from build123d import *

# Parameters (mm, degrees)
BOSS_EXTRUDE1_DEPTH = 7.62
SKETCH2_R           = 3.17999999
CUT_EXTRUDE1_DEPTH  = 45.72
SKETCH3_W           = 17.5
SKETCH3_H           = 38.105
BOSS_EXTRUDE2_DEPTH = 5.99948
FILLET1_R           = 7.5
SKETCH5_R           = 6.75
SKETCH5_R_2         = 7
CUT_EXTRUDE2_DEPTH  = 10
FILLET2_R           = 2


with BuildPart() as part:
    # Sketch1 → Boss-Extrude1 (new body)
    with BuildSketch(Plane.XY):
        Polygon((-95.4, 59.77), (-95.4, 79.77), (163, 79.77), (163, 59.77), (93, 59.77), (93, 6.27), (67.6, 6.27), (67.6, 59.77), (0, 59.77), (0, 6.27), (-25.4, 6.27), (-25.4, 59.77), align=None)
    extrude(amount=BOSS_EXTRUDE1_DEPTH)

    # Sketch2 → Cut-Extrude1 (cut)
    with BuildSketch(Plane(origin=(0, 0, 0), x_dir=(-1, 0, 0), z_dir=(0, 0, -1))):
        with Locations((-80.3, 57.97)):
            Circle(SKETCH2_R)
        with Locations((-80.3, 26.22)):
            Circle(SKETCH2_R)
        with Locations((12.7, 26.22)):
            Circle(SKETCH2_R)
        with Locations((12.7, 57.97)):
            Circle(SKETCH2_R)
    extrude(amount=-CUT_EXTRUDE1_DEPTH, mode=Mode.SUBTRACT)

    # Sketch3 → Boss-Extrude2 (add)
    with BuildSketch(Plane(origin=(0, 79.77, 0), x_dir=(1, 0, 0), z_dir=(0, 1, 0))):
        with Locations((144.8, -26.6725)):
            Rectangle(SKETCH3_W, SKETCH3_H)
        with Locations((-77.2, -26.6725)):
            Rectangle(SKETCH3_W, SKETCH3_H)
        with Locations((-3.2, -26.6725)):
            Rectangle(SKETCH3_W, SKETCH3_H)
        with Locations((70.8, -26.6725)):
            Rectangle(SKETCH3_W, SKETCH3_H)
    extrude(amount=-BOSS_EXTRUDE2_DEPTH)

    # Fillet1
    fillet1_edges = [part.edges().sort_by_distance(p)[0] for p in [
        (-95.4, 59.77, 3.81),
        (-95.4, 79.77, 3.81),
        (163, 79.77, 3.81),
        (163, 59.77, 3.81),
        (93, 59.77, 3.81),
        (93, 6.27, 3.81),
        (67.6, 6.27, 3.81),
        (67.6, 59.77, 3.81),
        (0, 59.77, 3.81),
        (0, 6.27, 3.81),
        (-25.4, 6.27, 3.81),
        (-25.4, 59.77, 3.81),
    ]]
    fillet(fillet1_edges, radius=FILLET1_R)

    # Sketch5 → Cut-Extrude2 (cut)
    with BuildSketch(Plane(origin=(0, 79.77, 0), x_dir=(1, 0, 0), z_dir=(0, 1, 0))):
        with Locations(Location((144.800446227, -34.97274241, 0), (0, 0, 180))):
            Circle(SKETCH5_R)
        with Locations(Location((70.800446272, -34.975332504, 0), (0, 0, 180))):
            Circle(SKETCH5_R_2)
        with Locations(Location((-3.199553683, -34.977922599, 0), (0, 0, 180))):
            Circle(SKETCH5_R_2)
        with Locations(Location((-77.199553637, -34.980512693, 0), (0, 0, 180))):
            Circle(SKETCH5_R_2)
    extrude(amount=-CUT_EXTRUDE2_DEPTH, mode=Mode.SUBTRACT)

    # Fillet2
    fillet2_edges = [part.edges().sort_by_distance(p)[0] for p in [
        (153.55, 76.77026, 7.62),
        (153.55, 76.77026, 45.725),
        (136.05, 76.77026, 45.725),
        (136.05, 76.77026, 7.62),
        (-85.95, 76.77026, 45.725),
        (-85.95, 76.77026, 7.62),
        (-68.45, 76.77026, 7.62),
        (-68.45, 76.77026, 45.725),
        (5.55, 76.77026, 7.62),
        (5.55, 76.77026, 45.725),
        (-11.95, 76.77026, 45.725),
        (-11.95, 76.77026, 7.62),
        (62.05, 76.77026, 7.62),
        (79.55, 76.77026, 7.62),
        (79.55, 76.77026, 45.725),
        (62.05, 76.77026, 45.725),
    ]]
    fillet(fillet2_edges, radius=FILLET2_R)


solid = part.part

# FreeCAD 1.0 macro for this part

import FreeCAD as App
import Part
import Sketcher


def edges_at(feature, points):
    """Names of the edges that pass closest to the given points."""
    edges = feature.Shape.Edges
    near = lambda p: min(range(len(edges)), key=lambda i: edges[i].distToShape(Part.Vertex(*p))[0])
    return sorted({f"Edge{near(p) + 1}" for p in points})

doc = App.newDocument("Part")
body = doc.addObject("PartDesign::Body", "Body")

# Sketch on XY plane
sketch1 = body.newObject("Sketcher::SketchObject", "Sketch")
sketch1.AttachmentSupport = (doc.getObject("XY_Plane"), [""])
sketch1.MapMode = "FlatFace"
sketch1.addGeometry(Part.LineSegment(App.Vector(-95, 80, 0), App.Vector(-95, 60, 0)), False)
sketch1.addGeometry(Part.LineSegment(App.Vector(-95, 60, 0), App.Vector(-25, 60, 0)), False)
sketch1.addGeometry(Part.LineSegment(App.Vector(-25, 60, 0), App.Vector(-25, 6, 0)), False)
sketch1.addGeometry(Part.LineSegment(App.Vector(-25, 6, 0), App.Vector(0, 6, 0)), False)
sketch1.addGeometry(Part.LineSegment(App.Vector(0, 6, 0), App.Vector(0, 60, 0)), False)
sketch1.addGeometry(Part.LineSegment(App.Vector(0, 60, 0), App.Vector(68, 60, 0)), False)
sketch1.addGeometry(Part.LineSegment(App.Vector(68, 60, 0), App.Vector(68, 6, 0)), False)
sketch1.addGeometry(Part.LineSegment(App.Vector(68, 6, 0), App.Vector(93, 6, 0)), False)
sketch1.addGeometry(Part.LineSegment(App.Vector(93, 6, 0), App.Vector(93, 60, 0)), False)
sketch1.addGeometry(Part.LineSegment(App.Vector(93, 60, 0), App.Vector(163, 60, 0)), False)
sketch1.addGeometry(Part.LineSegment(App.Vector(163, 60, 0), App.Vector(163, 80, 0)), False)
sketch1.addGeometry(Part.LineSegment(App.Vector(163, 80, 0), App.Vector(-95, 80, 0)), False)
sketch1.addConstraint(Sketcher.Constraint("Coincident", 0, 2, 1, 1))
sketch1.addConstraint(Sketcher.Constraint("Coincident", 1, 2, 2, 1))
sketch1.addConstraint(Sketcher.Constraint("Coincident", 2, 2, 3, 1))
sketch1.addConstraint(Sketcher.Constraint("Coincident", 3, 2, 4, 1))
sketch1.addConstraint(Sketcher.Constraint("Coincident", 4, 2, 5, 1))
sketch1.addConstraint(Sketcher.Constraint("Coincident", 5, 2, 6, 1))
sketch1.addConstraint(Sketcher.Constraint("Coincident", 6, 2, 7, 1))
sketch1.addConstraint(Sketcher.Constraint("Coincident", 7, 2, 8, 1))
sketch1.addConstraint(Sketcher.Constraint("Coincident", 8, 2, 9, 1))
sketch1.addConstraint(Sketcher.Constraint("Coincident", 9, 2, 10, 1))
sketch1.addConstraint(Sketcher.Constraint("Coincident", 10, 2, 11, 1))
sketch1.addConstraint(Sketcher.Constraint("Coincident", 11, 2, 0, 1))
sketch1.addConstraint(Sketcher.Constraint("Vertical", 0))
sketch1.addConstraint(Sketcher.Constraint("Horizontal", 1))
sketch1.addConstraint(Sketcher.Constraint("Vertical", 2))
sketch1.addConstraint(Sketcher.Constraint("Horizontal", 3))
sketch1.addConstraint(Sketcher.Constraint("Vertical", 4))
sketch1.addConstraint(Sketcher.Constraint("Horizontal", 5))
sketch1.addConstraint(Sketcher.Constraint("Vertical", 6))
sketch1.addConstraint(Sketcher.Constraint("Horizontal", 7))
sketch1.addConstraint(Sketcher.Constraint("Vertical", 8))
sketch1.addConstraint(Sketcher.Constraint("Horizontal", 9))
sketch1.addConstraint(Sketcher.Constraint("Vertical", 10))
sketch1.addConstraint(Sketcher.Constraint("Horizontal", 11))
sketch1.addConstraint(Sketcher.Constraint("PointOnObject", 3, 2, -2))
sketch1.addConstraint(Sketcher.Constraint("Horizontal", 1, 2, 4, 2))
sketch1.addConstraint(Sketcher.Constraint("Horizontal", 3, 2, 6, 2))
sketch1.addConstraint(Sketcher.Constraint("Horizontal", 5, 2, 8, 2))
sketch1.addConstraint(Sketcher.Constraint("Equal", 3, 7))
sketch1.addConstraint(Sketcher.Constraint("Equal", 1, 9))
sketch1.addConstraint(Sketcher.Constraint("DistanceX", 1, 1, 1, 2, 70.0))
sketch1.addConstraint(Sketcher.Constraint("DistanceY", 0, 2, 0, 1, 20.0))
sketch1.addConstraint(Sketcher.Constraint("DistanceX", 3, 1, 3, 2, 25.4))
sketch1.addConstraint(Sketcher.Constraint("DistanceX", 5, 1, 5, 2, 67.6))
sketch1.addConstraint(Sketcher.Constraint("DistanceY", 2, 2, 2, 1, 53.5))
sketch1.addConstraint(Sketcher.Constraint("DistanceY", -1, 1, 0, 2, 59.77))
pad1 = body.newObject("PartDesign::Pad", "Pad")
pad1.Profile = sketch1
pad1.Length = 7.62

# Sketch on XY plane
sketch2 = body.newObject("Sketcher::SketchObject", "Sketch001")
sketch2.AttachmentSupport = (doc.getObject("XY_Plane"), [""])
sketch2.MapMode = "FlatFace"
sketch2.addGeometry(Part.Circle(App.Vector(80.3, 58, 0), App.Vector(0, 0, 1), 3.2), False)
sketch2.addGeometry(Part.Circle(App.Vector(80.3, 26.2, 0), App.Vector(0, 0, 1), 3.2), False)
sketch2.addGeometry(Part.Circle(App.Vector(-12.7, 26.2, 0), App.Vector(0, 0, 1), 3.2), False)
sketch2.addGeometry(Part.Circle(App.Vector(-12.7, 58, 0), App.Vector(0, 0, 1), 3.2), False)
sketch2.addConstraint(Sketcher.Constraint("Equal", 0, 1))
sketch2.addConstraint(Sketcher.Constraint("Equal", 1, 2))
sketch2.addConstraint(Sketcher.Constraint("Equal", 2, 3))
sketch2.addConstraint(Sketcher.Constraint("Horizontal", 1, 3, 2, 3))
sketch2.addConstraint(Sketcher.Constraint("Horizontal", 0, 3, 3, 3))
sketch2.addConstraint(Sketcher.Constraint("Vertical", 0, 3, 1, 3))
sketch2.addConstraint(Sketcher.Constraint("Vertical", 2, 3, 3, 3))
sketch2.addConstraint(Sketcher.Constraint("Diameter", 0, 6.36))
sketch2.addConstraint(Sketcher.Constraint("DistanceX", 2, 3, 1, 3, 93.0))
sketch2.addConstraint(Sketcher.Constraint("DistanceX", -1, 1, 0, 3, 80.3))
sketch2.addConstraint(Sketcher.Constraint("DistanceY", -1, 1, 0, 3, 57.97))
sketch2.addConstraint(Sketcher.Constraint("DistanceY", -1, 1, 1, 3, 26.22))
pocket1 = body.newObject("PartDesign::Pocket", "Pocket")
pocket1.Profile = sketch2
pocket1.Length = 45.72
pocket1.Reversed = True

# Sketch on XZ plane
sketch3 = body.newObject("Sketcher::SketchObject", "Sketch002")
sketch3.AttachmentSupport = (doc.getObject("XZ_Plane"), [""])
sketch3.MapMode = "FlatFace"
sketch3.AttachmentOffset = App.Placement(App.Vector(0, 0, -79.77), App.Rotation())
sketch3.addGeometry(Part.LineSegment(App.Vector(136, 8, 0), App.Vector(136, 46, 0)), False)
sketch3.addGeometry(Part.LineSegment(App.Vector(136, 46, 0), App.Vector(154, 46, 0)), False)
sketch3.addGeometry(Part.LineSegment(App.Vector(154, 46, 0), App.Vector(154, 8, 0)), False)
sketch3.addGeometry(Part.LineSegment(App.Vector(154, 8, 0), App.Vector(136, 8, 0)), False)
sketch3.addGeometry(Part.LineSegment(App.Vector(-86, 8, 0), App.Vector(-86, 46, 0)), False)
sketch3.addGeometry(Part.LineSegment(App.Vector(-86, 46, 0), App.Vector(-68, 46, 0)), False)
sketch3.addGeometry(Part.LineSegment(App.Vector(-68, 46, 0), App.Vector(-68, 8, 0)), False)
sketch3.addGeometry(Part.LineSegment(App.Vector(-68, 8, 0), App.Vector(-86, 8, 0)), False)
sketch3.addGeometry(Part.LineSegment(App.Vector(-12, 8, 0), App.Vector(-12, 46, 0)), False)
sketch3.addGeometry(Part.LineSegment(App.Vector(-12, 46, 0), App.Vector(6, 46, 0)), False)
sketch3.addGeometry(Part.LineSegment(App.Vector(6, 46, 0), App.Vector(6, 8, 0)), False)
sketch3.addGeometry(Part.LineSegment(App.Vector(6, 8, 0), App.Vector(-12, 8, 0)), False)
sketch3.addGeometry(Part.LineSegment(App.Vector(62, 8, 0), App.Vector(62, 46, 0)), False)
sketch3.addGeometry(Part.LineSegment(App.Vector(62, 46, 0), App.Vector(80, 46, 0)), False)
sketch3.addGeometry(Part.LineSegment(App.Vector(80, 46, 0), App.Vector(80, 8, 0)), False)
sketch3.addGeometry(Part.LineSegment(App.Vector(80, 8, 0), App.Vector(62, 8, 0)), False)
sketch3.addConstraint(Sketcher.Constraint("Coincident", 0, 2, 1, 1))
sketch3.addConstraint(Sketcher.Constraint("Coincident", 1, 2, 2, 1))
sketch3.addConstraint(Sketcher.Constraint("Coincident", 2, 2, 3, 1))
sketch3.addConstraint(Sketcher.Constraint("Coincident", 3, 2, 0, 1))
sketch3.addConstraint(Sketcher.Constraint("Coincident", 4, 2, 5, 1))
sketch3.addConstraint(Sketcher.Constraint("Coincident", 5, 2, 6, 1))
sketch3.addConstraint(Sketcher.Constraint("Coincident", 6, 2, 7, 1))
sketch3.addConstraint(Sketcher.Constraint("Coincident", 7, 2, 4, 1))
sketch3.addConstraint(Sketcher.Constraint("Coincident", 8, 2, 9, 1))
sketch3.addConstraint(Sketcher.Constraint("Coincident", 9, 2, 10, 1))
sketch3.addConstraint(Sketcher.Constraint("Coincident", 10, 2, 11, 1))
sketch3.addConstraint(Sketcher.Constraint("Coincident", 11, 2, 8, 1))
sketch3.addConstraint(Sketcher.Constraint("Coincident", 12, 2, 13, 1))
sketch3.addConstraint(Sketcher.Constraint("Coincident", 13, 2, 14, 1))
sketch3.addConstraint(Sketcher.Constraint("Coincident", 14, 2, 15, 1))
sketch3.addConstraint(Sketcher.Constraint("Coincident", 15, 2, 12, 1))
sketch3.addConstraint(Sketcher.Constraint("Vertical", 0))
sketch3.addConstraint(Sketcher.Constraint("Horizontal", 1))
sketch3.addConstraint(Sketcher.Constraint("Vertical", 2))
sketch3.addConstraint(Sketcher.Constraint("Horizontal", 3))
sketch3.addConstraint(Sketcher.Constraint("Vertical", 4))
sketch3.addConstraint(Sketcher.Constraint("Horizontal", 5))
sketch3.addConstraint(Sketcher.Constraint("Vertical", 6))
sketch3.addConstraint(Sketcher.Constraint("Horizontal", 7))
sketch3.addConstraint(Sketcher.Constraint("Vertical", 8))
sketch3.addConstraint(Sketcher.Constraint("Horizontal", 9))
sketch3.addConstraint(Sketcher.Constraint("Vertical", 10))
sketch3.addConstraint(Sketcher.Constraint("Horizontal", 11))
sketch3.addConstraint(Sketcher.Constraint("Vertical", 12))
sketch3.addConstraint(Sketcher.Constraint("Horizontal", 13))
sketch3.addConstraint(Sketcher.Constraint("Vertical", 14))
sketch3.addConstraint(Sketcher.Constraint("Horizontal", 15))
sketch3.addConstraint(Sketcher.Constraint("Horizontal", 1, 2, 4, 2))
sketch3.addConstraint(Sketcher.Constraint("Horizontal", 3, 2, 6, 2))
sketch3.addConstraint(Sketcher.Constraint("Horizontal", 5, 2, 8, 2))
sketch3.addConstraint(Sketcher.Constraint("Horizontal", 7, 2, 10, 2))
sketch3.addConstraint(Sketcher.Constraint("Horizontal", 9, 2, 12, 2))
sketch3.addConstraint(Sketcher.Constraint("Horizontal", 11, 2, 14, 2))
sketch3.addConstraint(Sketcher.Constraint("Equal", 3, 5))
sketch3.addConstraint(Sketcher.Constraint("Equal", 7, 9))
sketch3.addConstraint(Sketcher.Constraint("Equal", 11, 13))
sketch3.addConstraint(Sketcher.Constraint("DistanceX", 1, 1, 1, 2, 17.5))
sketch3.addConstraint(Sketcher.Constraint("DistanceX", 4, 2, 0, 2, 222.0))
sketch3.addConstraint(Sketcher.Constraint("DistanceX", 4, 2, 8, 2, 74.0))
sketch3.addConstraint(Sketcher.Constraint("DistanceX", 8, 2, 12, 2, 74.0))
sketch3.addConstraint(Sketcher.Constraint("DistanceY", 0, 1, 0, 2, 38.105))
sketch3.addConstraint(Sketcher.Constraint("DistanceX", -1, 1, 0, 2, 136.05))
sketch3.addConstraint(Sketcher.Constraint("DistanceY", -1, 1, 2, 2, 7.62))
pad2 = body.newObject("PartDesign::Pad", "Pad001")
pad2.Profile = sketch3
pad2.Length = 5.99948
doc.recompute()

fillet = body.newObject("PartDesign::Fillet", "Fillet")
fillet.Base = (pad2, edges_at(pad2, [
    (-95.4, 59.77, 3.81),
    (-95.4, 79.77, 3.81),
    (163, 79.77, 3.81),
    (163, 59.77, 3.81),
    (93, 59.77, 3.81),
    (93, 6.27, 3.81),
    (67.6, 6.27, 3.81),
    (67.6, 59.77, 3.81),
    (0, 59.77, 3.81),
    (0, 6.27, 3.81),
    (-25.4, 6.27, 3.81),
    (-25.4, 59.77, 3.81),
]))
fillet.Radius = 7.5

# Sketch on XZ plane
sketch4 = body.newObject("Sketcher::SketchObject", "Sketch003")
sketch4.AttachmentSupport = (doc.getObject("XZ_Plane"), [""])
sketch4.MapMode = "FlatFace"
sketch4.AttachmentOffset = App.Placement(App.Vector(0, 0, -79.77), App.Rotation())
sketch4.addGeometry(Part.Circle(App.Vector(145, 35, 0), App.Vector(0, 0, 1), 7), False)
sketch4.addGeometry(Part.Circle(App.Vector(71, 35, 0), App.Vector(0, 0, 1), 7), False)
sketch4.addGeometry(Part.Circle(App.Vector(-3, 35, 0), App.Vector(0, 0, 1), 7), False)
sketch4.addGeometry(Part.Circle(App.Vector(-77, 35, 0), App.Vector(0, 0, 1), 7), False)
sketch4.addConstraint(Sketcher.Constraint("Equal", 1, 2))
sketch4.addConstraint(Sketcher.Constraint("Equal", 2, 3))
sketch4.addConstraint(Sketcher.Constraint("Diameter", 1, 14.0))
sketch4.addConstraint(Sketcher.Constraint("Diameter", 0, 13.5))
sketch4.addConstraint(Sketcher.Constraint("DistanceX", 1, 3, 0, 3, 74.0))
sketch4.addConstraint(Sketcher.Constraint("DistanceX", 2, 3, 1, 3, 74.0))
sketch4.addConstraint(Sketcher.Constraint("DistanceX", 3, 3, 2, 3, 74.0))
sketch4.addConstraint(Sketcher.Constraint("DistanceY", 0, 3, 1, 3, 0.00259))
sketch4.addConstraint(Sketcher.Constraint("DistanceY", 1, 3, 2, 3, 0.00259))
sketch4.addConstraint(Sketcher.Constraint("DistanceY", 2, 3, 3, 3, 0.00259))
sketch4.addConstraint(Sketcher.Constraint("DistanceX", -1, 1, 0, 3, 144.800446))
sketch4.addConstraint(Sketcher.Constraint("DistanceY", -1, 1, 0, 3, 34.972742))
pocket2 = body.newObject("PartDesign::Pocket", "Pocket001")
pocket2.Profile = sketch4
pocket2.Length = 10
pocket2.Reversed = True
doc.recompute()

fillet2 = body.newObject("PartDesign::Fillet", "Fillet001")
fillet2.Base = (pocket2, edges_at(pocket2, [
    (153.55, 76.77, 7.62),
    (153.55, 76.77, 45.725),
    (136.05, 76.77, 45.725),
    (136.05, 76.77, 7.62),
    (-85.95, 76.77, 45.725),
    (-85.95, 76.77, 7.62),
    (-68.45, 76.77, 7.62),
    (-68.45, 76.77, 45.725),
    (5.55, 76.77, 7.62),
    (5.55, 76.77, 45.725),
    (-11.95, 76.77, 45.725),
    (-11.95, 76.77, 7.62),
    (62.05, 76.77, 7.62),
    (79.55, 76.77, 7.62),
    (79.55, 76.77, 45.725),
    (62.05, 76.77, 45.725),
]))
fillet2.Radius = 2

doc.recompute()
